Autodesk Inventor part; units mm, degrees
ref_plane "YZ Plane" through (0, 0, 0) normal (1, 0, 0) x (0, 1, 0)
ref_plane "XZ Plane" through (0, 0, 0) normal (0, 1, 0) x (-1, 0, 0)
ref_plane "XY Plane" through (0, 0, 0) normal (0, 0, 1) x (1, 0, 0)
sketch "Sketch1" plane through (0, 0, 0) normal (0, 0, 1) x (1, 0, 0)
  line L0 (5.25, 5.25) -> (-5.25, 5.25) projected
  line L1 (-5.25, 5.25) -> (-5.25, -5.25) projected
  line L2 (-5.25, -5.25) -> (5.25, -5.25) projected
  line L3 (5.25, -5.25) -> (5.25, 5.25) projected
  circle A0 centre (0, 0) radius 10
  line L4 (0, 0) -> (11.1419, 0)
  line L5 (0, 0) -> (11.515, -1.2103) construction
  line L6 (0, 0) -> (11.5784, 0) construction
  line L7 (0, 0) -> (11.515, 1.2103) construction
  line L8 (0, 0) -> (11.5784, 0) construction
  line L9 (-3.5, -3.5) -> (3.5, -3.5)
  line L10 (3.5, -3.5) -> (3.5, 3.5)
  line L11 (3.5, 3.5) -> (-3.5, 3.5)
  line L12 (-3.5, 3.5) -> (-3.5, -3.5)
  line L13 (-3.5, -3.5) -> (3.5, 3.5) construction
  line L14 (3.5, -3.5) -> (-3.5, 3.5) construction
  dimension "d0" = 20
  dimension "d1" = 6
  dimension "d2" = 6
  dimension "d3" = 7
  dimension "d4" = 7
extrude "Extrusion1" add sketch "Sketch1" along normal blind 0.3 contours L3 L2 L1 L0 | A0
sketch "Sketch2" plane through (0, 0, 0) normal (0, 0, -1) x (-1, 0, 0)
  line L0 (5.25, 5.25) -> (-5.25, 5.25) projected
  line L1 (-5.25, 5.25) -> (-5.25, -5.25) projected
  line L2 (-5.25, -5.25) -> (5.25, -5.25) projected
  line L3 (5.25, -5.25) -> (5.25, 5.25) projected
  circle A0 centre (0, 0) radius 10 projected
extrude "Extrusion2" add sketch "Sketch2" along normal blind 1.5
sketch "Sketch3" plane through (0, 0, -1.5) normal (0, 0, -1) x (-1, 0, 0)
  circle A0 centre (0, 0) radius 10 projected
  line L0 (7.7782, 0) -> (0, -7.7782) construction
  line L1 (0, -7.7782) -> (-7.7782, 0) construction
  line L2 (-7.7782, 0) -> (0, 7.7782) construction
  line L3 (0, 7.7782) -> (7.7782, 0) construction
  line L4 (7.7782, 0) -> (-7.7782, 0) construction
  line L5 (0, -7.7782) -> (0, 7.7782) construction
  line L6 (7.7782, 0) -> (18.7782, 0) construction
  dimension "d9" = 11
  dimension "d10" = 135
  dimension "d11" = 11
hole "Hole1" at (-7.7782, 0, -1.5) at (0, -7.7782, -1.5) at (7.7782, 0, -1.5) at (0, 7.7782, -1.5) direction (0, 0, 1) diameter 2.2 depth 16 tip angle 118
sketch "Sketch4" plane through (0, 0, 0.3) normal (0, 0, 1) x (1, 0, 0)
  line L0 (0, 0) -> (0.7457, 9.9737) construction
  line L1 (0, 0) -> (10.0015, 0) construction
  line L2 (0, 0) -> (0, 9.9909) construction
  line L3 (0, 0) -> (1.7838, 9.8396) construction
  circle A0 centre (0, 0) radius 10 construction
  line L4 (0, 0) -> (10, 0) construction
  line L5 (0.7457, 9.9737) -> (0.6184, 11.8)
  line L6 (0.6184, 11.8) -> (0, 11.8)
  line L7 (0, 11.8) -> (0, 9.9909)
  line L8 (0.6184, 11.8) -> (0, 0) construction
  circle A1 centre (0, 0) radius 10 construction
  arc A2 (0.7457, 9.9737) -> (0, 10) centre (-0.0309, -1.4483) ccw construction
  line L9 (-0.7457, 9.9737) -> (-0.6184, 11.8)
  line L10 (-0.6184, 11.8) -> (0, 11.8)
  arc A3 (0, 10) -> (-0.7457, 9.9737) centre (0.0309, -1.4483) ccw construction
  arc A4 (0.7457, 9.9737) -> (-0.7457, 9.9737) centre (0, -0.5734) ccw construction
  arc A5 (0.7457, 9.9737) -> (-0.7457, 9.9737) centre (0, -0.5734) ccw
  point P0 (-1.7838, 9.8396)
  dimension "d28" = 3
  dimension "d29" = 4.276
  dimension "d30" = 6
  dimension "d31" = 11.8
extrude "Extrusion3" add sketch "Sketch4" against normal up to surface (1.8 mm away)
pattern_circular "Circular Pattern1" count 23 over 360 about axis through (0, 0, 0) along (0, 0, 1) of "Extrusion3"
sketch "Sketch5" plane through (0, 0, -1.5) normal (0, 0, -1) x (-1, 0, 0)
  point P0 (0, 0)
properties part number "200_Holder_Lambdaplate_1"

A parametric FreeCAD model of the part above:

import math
import FreeCAD as App
import Part
import Sketcher
from FreeCAD import Vector
Q = App.Units.Quantity

doc = App.newDocument("Part")
body = doc.addObject("PartDesign::Body", "Body")
body.AllowCompound = True

sketch1 = doc.addObject("Sketcher::SketchObject", "Sketch")
body.addObject(sketch1)
sketch1.AttachmentSupport = (doc.XY_Plane, [""])
sketch1.MapMode = "FlatFace"
sketch1.addGeometry([
    Part.Circle(Vector(0, 0, 0), Vector(0, 0, 1), 10),
    Part.LineSegment(Vector(3.5, 3.5, 0), Vector(3.5, 0, 0)),
    Part.LineSegment(Vector(3.5, 0, 0), Vector(3.5, -3.5, 0)),
    Part.LineSegment(Vector(3.5, -3.5, 0), Vector(-3.5, -3.5, 0)),
    Part.LineSegment(Vector(-3.5, -3.5, 0), Vector(-3.5, 3.5, 0)),
    Part.LineSegment(Vector(-3.5, 3.5, 0), Vector(3.5, 3.5, 0)),
], False)
sketch1.addConstraint([
    Sketcher.Constraint("Coincident", 1, 2, 2, 1),
    Sketcher.Constraint("Coincident", 2, 2, 3, 1),
    Sketcher.Constraint("Coincident", 3, 2, 4, 1),
    Sketcher.Constraint("Coincident", 4, 2, 5, 1),
    Sketcher.Constraint("Coincident", 5, 2, 1, 1),
    Sketcher.Constraint("Vertical", 1),
    Sketcher.Constraint("Vertical", 2),
    Sketcher.Constraint("Horizontal", 3),
    Sketcher.Constraint("Vertical", 4),
    Sketcher.Constraint("Horizontal", 5),
    Sketcher.Constraint("Coincident", 0, 3, -1, 1),
    Sketcher.Constraint("Symmetric", 2, 2, 4, 2, -1, 1),
    Sketcher.Constraint("PointOnObject", 1, 2, -1),
    Sketcher.Constraint("Equal", 5, 4),
    Sketcher.Constraint("Diameter", 0, Q("20 mm")),
    Sketcher.Constraint("DistanceX", 3, 2, 3, 1, Q("7 mm")),
])
pad1 = doc.addObject("PartDesign::Pad", "Pad")
body.addObject(pad1)
pad1.Profile = sketch1
pad1.Length = 0.3

sketch2 = doc.addObject("Sketcher::SketchObject", "Sketch001")
body.addObject(sketch2)
sketch2.AttachmentSupport = (doc.XY_Plane, [""])
sketch2.MapMode = "FlatFace"
sketch2.addGeometry([
    Part.Circle(Vector(0, 0, 0), Vector(0, 0, 1), 10),
    Part.LineSegment(Vector(5, 5, 0), Vector(-5, 5, 0)),
    Part.LineSegment(Vector(-5, 5, 0), Vector(-5, -5, 0)),
    Part.LineSegment(Vector(-5, -5, 0), Vector(5, -5, 0)),
    Part.LineSegment(Vector(5, -5, 0), Vector(5, 5, 0)),
], False)
sketch2.addConstraint([
    Sketcher.Constraint("Coincident", 1, 2, 2, 1),
    Sketcher.Constraint("Coincident", 2, 2, 3, 1),
    Sketcher.Constraint("Coincident", 3, 2, 4, 1),
    Sketcher.Constraint("Coincident", 4, 2, 1, 1),
    Sketcher.Constraint("Horizontal", 1),
    Sketcher.Constraint("Vertical", 2),
    Sketcher.Constraint("Horizontal", 3),
    Sketcher.Constraint("Vertical", 4),
    Sketcher.Constraint("Coincident", 0, 3, -1, 1),
    Sketcher.Constraint("Symmetric", 1, 2, 3, 2, -1, 1),
    Sketcher.Constraint("Equal", 3, 2),
    Sketcher.Constraint("Diameter", 0, Q("20 mm")),
    Sketcher.Constraint("DistanceX", 1, 2, 1, 1, Q("10.5 mm")),
])
pad2 = doc.addObject("PartDesign::Pad", "Pad001")
body.addObject(pad2)
pad2.Profile = sketch2
pad2.Length = 1.5
pad2.Reversed = True

sketch3 = doc.addObject("Sketcher::SketchObject", "Sketch002")
body.addObject(sketch3)
sketch3.AttachmentSupport = (doc.XY_Plane, [""])
sketch3.MapMode = "FlatFace"
sketch3.AttachmentOffset = App.Placement(Vector(0, 0, -1.5), App.Rotation())
sketch3.addGeometry([
    Part.Circle(Vector(-7.8, 0, 0), Vector(0, 0, 1), 1.1),
    Part.Circle(Vector(0, -7.8, 0), Vector(0, 0, 1), 1.1),
    Part.Circle(Vector(7.8, 0, 0), Vector(0, 0, 1), 1.1),
    Part.Circle(Vector(0, 7.8, 0), Vector(0, 0, 1), 1.1),
], False)
sketch3.addConstraint([
    Sketcher.Constraint("Equal", 0, 1),
    Sketcher.Constraint("Equal", 1, 2),
    Sketcher.Constraint("Equal", 2, 3),
    Sketcher.Constraint("Symmetric", 0, 3, 2, 3, -1, 1),
    Sketcher.Constraint("Symmetric", 1, 3, 3, 3, -1, 1),
    Sketcher.Constraint("PointOnObject", 0, 3, -1),
    Sketcher.Constraint("PointOnObject", 1, 3, -2),
    Sketcher.Constraint("Diameter", 0, Q("2.2 mm")),
    Sketcher.Constraint("DistanceX", 0, 3, -1, 1, Q("7.7782 mm")),
    Sketcher.Constraint("DistanceY", 1, 3, -1, 1, Q("7.7782 mm")),
])
doc.recompute()
hole = doc.addObject("PartDesign::Hole", "Hole")
body.addObject(hole)
hole.Profile = sketch3
hole.ThreadType = "None"
hole.Diameter = 2.2
hole.DepthType = "Dimension"
hole.Depth = 16
hole.DrillPoint = "Angled"
hole.DrillPointAngle = 118
hole.Reversed = True

sketch4 = doc.addObject("Sketcher::SketchObject", "Sketch003")
body.addObject(sketch4)
sketch4.AttachmentSupport = (doc.XY_Plane, [""])
sketch4.MapMode = "FlatFace"
sketch4.AttachmentOffset = App.Placement(Vector(0, 0, 0.3), App.Rotation())
sketch4.addGeometry([
    Part.LineSegment(Vector(0.7, 10, 0), Vector(0.6, 11.8, 0)),
    Part.LineSegment(Vector(0.6, 11.8, 0), Vector(-0.6, 11.8, 0)),
    Part.LineSegment(Vector(-0.6, 11.8, 0), Vector(-0.7, 10, 0)),
    Part.ArcOfCircle(Part.Circle(Vector(0, -0.6, 0), Vector(0, 0, 1), 10.6), math.radians(85.96), math.radians(94.04)),
], False)
sketch4.addConstraint([
    Sketcher.Constraint("Coincident", 0, 2, 1, 1),
    Sketcher.Constraint("Coincident", 1, 2, 2, 1),
    Sketcher.Constraint("Coincident", 2, 2, 3, 2),
    Sketcher.Constraint("Coincident", 3, 1, 0, 1),
    Sketcher.Constraint("Horizontal", 1),
    Sketcher.Constraint("Symmetric", 2, 2, 3, 1, -2),
    Sketcher.Constraint("Equal", 0, 2),
    Sketcher.Constraint("DistanceY", -1, 1, 0, 2, Q("11.8 mm")),
    Sketcher.Constraint("Radius", 3, Q("10.5734 mm")),
    Sketcher.Constraint("DistanceX", 1, 2, 1, 1, Q("1.2368 mm")),
    Sketcher.Constraint("DistanceX", 2, 2, 0, 2, Q("1.364 mm")),
    Sketcher.Constraint("Distance", 0, Q("1.8307 mm")),
])
pad3 = doc.addObject("PartDesign::Pad", "Pad002")
body.addObject(pad3)
pad3.Profile = sketch4
pad3.Length = 1.8
pad3.Reversed = True
doc.recompute()

polarpattern = doc.addObject("PartDesign::PolarPattern", "PolarPattern")
body.addObject(polarpattern)
polarpattern.Originals = [pad3]
polarpattern.Axis = (doc.Z_Axis, [""])
polarpattern.Angle = 360
polarpattern.Occurrences = 23
body.Tip = polarpattern

doc.recompute()
